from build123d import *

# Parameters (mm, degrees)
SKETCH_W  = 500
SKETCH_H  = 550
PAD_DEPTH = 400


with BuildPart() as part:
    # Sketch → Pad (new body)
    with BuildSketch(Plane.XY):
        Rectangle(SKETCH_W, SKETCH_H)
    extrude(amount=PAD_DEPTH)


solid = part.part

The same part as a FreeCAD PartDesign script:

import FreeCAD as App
import Part
import Sketcher
from FreeCAD import Vector
Q = App.Units.Quantity


def add_polygon(sketch, points):
    """Adds a closed chain of lines whose ends are joined by coincident constraints."""
    first, n = sketch.GeometryCount, len(points)
    for a, b in zip(points, points[1:] + points[:1]):
        sketch.addGeometry(Part.LineSegment(App.Vector(*a, 0), App.Vector(*b, 0)), False)
    for i in range(n):
        sketch.addConstraint(Sketcher.Constraint("Coincident", first + i, 2, first + (i + 1) % n, 1))

doc = App.newDocument("Part")
body = doc.addObject("PartDesign::Body", "Body")

sketch1 = doc.addObject("Sketcher::SketchObject", "Sketch")
body.addObject(sketch1)
sketch1.AttachmentSupport = (doc.XY_Plane, [""])
sketch1.MapMode = "FlatFace"
add_polygon(sketch1, [(-250, 275), (-250, -275), (250, -275), (250, 275)])
sketch1.addConstraint([
    Sketcher.Constraint("Vertical", 0),
    Sketcher.Constraint("Horizontal", 1),
    Sketcher.Constraint("Vertical", 2),
    Sketcher.Constraint("Horizontal", 3),
    Sketcher.Constraint("Symmetric", 0, 2, 2, 2, -1, 1),
    Sketcher.Constraint("DistanceX", 1, 1, 1, 2, Q("500 mm")),
    Sketcher.Constraint("DistanceY", 0, 2, 0, 1, Q("550 mm")),
])
pad1 = doc.addObject("PartDesign::Pad", "Pad")
body.addObject(pad1)
pad1.Profile = sketch1
pad1.Length = 400

doc.recompute()
